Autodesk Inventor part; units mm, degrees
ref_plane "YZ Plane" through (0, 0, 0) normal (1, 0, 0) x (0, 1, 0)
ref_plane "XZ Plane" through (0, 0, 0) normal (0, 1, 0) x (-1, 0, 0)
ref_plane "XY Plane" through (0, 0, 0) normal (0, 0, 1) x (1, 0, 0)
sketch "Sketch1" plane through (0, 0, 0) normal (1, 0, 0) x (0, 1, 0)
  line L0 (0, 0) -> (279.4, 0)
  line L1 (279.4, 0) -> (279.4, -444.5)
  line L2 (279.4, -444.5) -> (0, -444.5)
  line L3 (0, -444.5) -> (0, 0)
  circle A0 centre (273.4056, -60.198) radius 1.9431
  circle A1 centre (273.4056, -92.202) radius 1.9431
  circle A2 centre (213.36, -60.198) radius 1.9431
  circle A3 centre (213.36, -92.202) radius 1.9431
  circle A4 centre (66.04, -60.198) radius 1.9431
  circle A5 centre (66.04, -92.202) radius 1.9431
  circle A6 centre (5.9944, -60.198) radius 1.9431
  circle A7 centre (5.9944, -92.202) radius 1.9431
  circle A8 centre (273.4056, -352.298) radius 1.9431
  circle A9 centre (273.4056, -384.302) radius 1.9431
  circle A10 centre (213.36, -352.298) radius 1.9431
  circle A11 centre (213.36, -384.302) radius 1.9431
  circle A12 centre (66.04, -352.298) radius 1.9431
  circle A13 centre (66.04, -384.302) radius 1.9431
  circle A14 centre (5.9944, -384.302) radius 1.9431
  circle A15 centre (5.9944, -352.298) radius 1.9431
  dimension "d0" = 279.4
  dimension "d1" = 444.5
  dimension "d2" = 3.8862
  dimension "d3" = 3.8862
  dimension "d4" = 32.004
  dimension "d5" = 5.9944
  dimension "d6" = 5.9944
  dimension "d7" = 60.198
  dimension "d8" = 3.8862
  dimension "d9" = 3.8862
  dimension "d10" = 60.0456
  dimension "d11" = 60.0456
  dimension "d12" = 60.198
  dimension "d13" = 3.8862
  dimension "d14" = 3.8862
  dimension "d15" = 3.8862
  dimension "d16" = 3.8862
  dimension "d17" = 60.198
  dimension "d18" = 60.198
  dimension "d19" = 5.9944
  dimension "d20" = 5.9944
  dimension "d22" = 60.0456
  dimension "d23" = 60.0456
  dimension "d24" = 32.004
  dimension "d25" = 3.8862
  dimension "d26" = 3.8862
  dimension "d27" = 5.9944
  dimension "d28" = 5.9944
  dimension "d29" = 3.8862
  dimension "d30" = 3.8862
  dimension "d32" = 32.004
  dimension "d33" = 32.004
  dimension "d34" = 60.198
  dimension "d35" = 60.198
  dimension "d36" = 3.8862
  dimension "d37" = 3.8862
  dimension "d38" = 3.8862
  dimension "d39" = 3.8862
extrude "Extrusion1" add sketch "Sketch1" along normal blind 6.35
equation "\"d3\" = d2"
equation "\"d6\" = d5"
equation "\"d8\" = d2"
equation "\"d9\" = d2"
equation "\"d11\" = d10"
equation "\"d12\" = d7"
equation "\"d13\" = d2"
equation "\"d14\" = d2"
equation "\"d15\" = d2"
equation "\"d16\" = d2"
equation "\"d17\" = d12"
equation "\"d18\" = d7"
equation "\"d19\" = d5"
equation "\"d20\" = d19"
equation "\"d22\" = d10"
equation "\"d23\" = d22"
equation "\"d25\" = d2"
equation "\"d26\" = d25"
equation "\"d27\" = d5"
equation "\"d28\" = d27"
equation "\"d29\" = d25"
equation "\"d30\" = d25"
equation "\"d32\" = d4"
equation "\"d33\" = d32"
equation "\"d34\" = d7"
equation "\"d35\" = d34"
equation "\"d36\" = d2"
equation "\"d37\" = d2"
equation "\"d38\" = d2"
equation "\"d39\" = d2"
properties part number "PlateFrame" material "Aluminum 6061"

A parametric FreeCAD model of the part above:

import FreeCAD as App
import Part
import Sketcher
from FreeCAD import Vector
Q = App.Units.Quantity


def add_polygon(sketch, points):
    """Adds a closed chain of lines whose ends are joined by coincident constraints."""
    first, n = sketch.GeometryCount, len(points)
    for a, b in zip(points, points[1:] + points[:1]):
        sketch.addGeometry(Part.LineSegment(App.Vector(*a, 0), App.Vector(*b, 0)), False)
    for i in range(n):
        sketch.addConstraint(Sketcher.Constraint("Coincident", first + i, 2, first + (i + 1) % n, 1))

doc = App.newDocument("Part")
body = doc.addObject("PartDesign::Body", "Body")

# Sketch on YZ plane
sketch1 = body.newObject("Sketcher::SketchObject", "Sketch")
sketch1.AttachmentSupport = (doc.getObject("YZ_Plane"), [""])
sketch1.MapMode = "FlatFace"
add_polygon(sketch1, [(279.4, 0), (0, 0), (0, -444.5), (279.4, -444.5)])  # lines 0-3
sketch1.addGeometry(Part.Circle(Vector(6, -384.3, 0), Vector(0, 0, 1), 1.9), False)  # 4
sketch1.addGeometry(Part.Circle(Vector(6, -352.3, 0), Vector(0, 0, 1), 1.9), False)  # 5
sketch1.addGeometry(Part.Circle(Vector(66, -384.3, 0), Vector(0, 0, 1), 1.9), False)  # 6
sketch1.addGeometry(Part.Circle(Vector(66, -352.3, 0), Vector(0, 0, 1), 1.9), False)  # 7
sketch1.addGeometry(Part.Circle(Vector(213.4, -384.3, 0), Vector(0, 0, 1), 1.9), False)  # 8
sketch1.addGeometry(Part.Circle(Vector(213.4, -352.3, 0), Vector(0, 0, 1), 1.9), False)  # 9
sketch1.addGeometry(Part.Circle(Vector(273.4, -384.3, 0), Vector(0, 0, 1), 1.9), False)  # 10
sketch1.addGeometry(Part.Circle(Vector(273.4, -352.3, 0), Vector(0, 0, 1), 1.9), False)  # 11
sketch1.addGeometry(Part.Circle(Vector(6, -92.2, 0), Vector(0, 0, 1), 1.9), False)  # 12
sketch1.addGeometry(Part.Circle(Vector(6, -60.2, 0), Vector(0, 0, 1), 1.9), False)  # 13
sketch1.addGeometry(Part.Circle(Vector(66, -92.2, 0), Vector(0, 0, 1), 1.9), False)  # 14
sketch1.addGeometry(Part.Circle(Vector(66, -60.2, 0), Vector(0, 0, 1), 1.9), False)  # 15
sketch1.addGeometry(Part.Circle(Vector(213.4, -92.2, 0), Vector(0, 0, 1), 1.9), False)  # 16
sketch1.addGeometry(Part.Circle(Vector(213.4, -60.2, 0), Vector(0, 0, 1), 1.9), False)  # 17
sketch1.addGeometry(Part.Circle(Vector(273.4, -92.2, 0), Vector(0, 0, 1), 1.9), False)  # 18
sketch1.addGeometry(Part.Circle(Vector(273.4, -60.2, 0), Vector(0, 0, 1), 1.9), False)  # 19
sketch1.addConstraint(Sketcher.Constraint("Horizontal", 0))
sketch1.addConstraint(Sketcher.Constraint("Vertical", 1))
sketch1.addConstraint(Sketcher.Constraint("Horizontal", 2))
sketch1.addConstraint(Sketcher.Constraint("Vertical", 3))
sketch1.addConstraint(Sketcher.Constraint("Coincident", 0, 2, -1, 1))
sketch1.addConstraint(Sketcher.Constraint("Equal", 4, 5))
sketch1.addConstraint(Sketcher.Constraint("Equal", 5, 6))
sketch1.addConstraint(Sketcher.Constraint("Equal", 6, 7))
sketch1.addConstraint(Sketcher.Constraint("Equal", 7, 8))
sketch1.addConstraint(Sketcher.Constraint("Equal", 8, 9))
sketch1.addConstraint(Sketcher.Constraint("Equal", 9, 10))
sketch1.addConstraint(Sketcher.Constraint("Equal", 10, 11))
sketch1.addConstraint(Sketcher.Constraint("Equal", 11, 12))
sketch1.addConstraint(Sketcher.Constraint("Equal", 12, 13))
sketch1.addConstraint(Sketcher.Constraint("Equal", 13, 14))
sketch1.addConstraint(Sketcher.Constraint("Equal", 14, 15))
sketch1.addConstraint(Sketcher.Constraint("Equal", 15, 16))
sketch1.addConstraint(Sketcher.Constraint("Equal", 16, 17))
sketch1.addConstraint(Sketcher.Constraint("Equal", 17, 18))
sketch1.addConstraint(Sketcher.Constraint("Equal", 18, 19))
sketch1.addConstraint(Sketcher.Constraint("Horizontal", 4, 3, 6, 3))
sketch1.addConstraint(Sketcher.Constraint("Horizontal", 5, 3, 7, 3))
sketch1.addConstraint(Sketcher.Constraint("Horizontal", 6, 3, 8, 3))
sketch1.addConstraint(Sketcher.Constraint("Horizontal", 7, 3, 9, 3))
sketch1.addConstraint(Sketcher.Constraint("Horizontal", 8, 3, 10, 3))
sketch1.addConstraint(Sketcher.Constraint("Horizontal", 9, 3, 11, 3))
sketch1.addConstraint(Sketcher.Constraint("Horizontal", 12, 3, 14, 3))
sketch1.addConstraint(Sketcher.Constraint("Horizontal", 13, 3, 15, 3))
sketch1.addConstraint(Sketcher.Constraint("Horizontal", 14, 3, 16, 3))
sketch1.addConstraint(Sketcher.Constraint("Horizontal", 15, 3, 17, 3))
sketch1.addConstraint(Sketcher.Constraint("Horizontal", 16, 3, 18, 3))
sketch1.addConstraint(Sketcher.Constraint("Horizontal", 17, 3, 19, 3))
sketch1.addConstraint(Sketcher.Constraint("Vertical", 4, 3, 5, 3))
sketch1.addConstraint(Sketcher.Constraint("Vertical", 6, 3, 7, 3))
sketch1.addConstraint(Sketcher.Constraint("Vertical", 8, 3, 9, 3))
sketch1.addConstraint(Sketcher.Constraint("Vertical", 10, 3, 11, 3))
sketch1.addConstraint(Sketcher.Constraint("Vertical", 5, 3, 12, 3))
sketch1.addConstraint(Sketcher.Constraint("Vertical", 12, 3, 13, 3))
sketch1.addConstraint(Sketcher.Constraint("Vertical", 7, 3, 14, 3))
sketch1.addConstraint(Sketcher.Constraint("Vertical", 14, 3, 15, 3))
sketch1.addConstraint(Sketcher.Constraint("Vertical", 9, 3, 16, 3))
sketch1.addConstraint(Sketcher.Constraint("Vertical", 16, 3, 17, 3))
sketch1.addConstraint(Sketcher.Constraint("Vertical", 11, 3, 18, 3))
sketch1.addConstraint(Sketcher.Constraint("Vertical", 18, 3, 19, 3))
sketch1.addConstraint(Sketcher.Constraint("DistanceX", 0, 2, 0, 1, Q("11 in")))
sketch1.addConstraint(Sketcher.Constraint("Diameter", 4, Q("0.153 in")))
sketch1.addConstraint(Sketcher.Constraint("DistanceY", 1, 2, 1, 1, Q("17.5 in")))
sketch1.addConstraint(Sketcher.Constraint("DistanceY", 13, 3, -1, 1, Q("2.37 in")))
sketch1.addConstraint(Sketcher.Constraint("DistanceY", 4, 3, 5, 3, Q("1.26 in")))
sketch1.addConstraint(Sketcher.Constraint("DistanceY", 12, 3, 13, 3, Q("1.26 in")))
sketch1.addConstraint(Sketcher.Constraint("DistanceY", 1, 2, 4, 3, Q("2.37 in")))
sketch1.addConstraint(Sketcher.Constraint("DistanceX", -1, 1, 4, 3, Q("0.236 in")))
sketch1.addConstraint(Sketcher.Constraint("DistanceX", 4, 3, 6, 3, Q("2.364 in")))
sketch1.addConstraint(Sketcher.Constraint("DistanceX", 8, 3, 10, 3, Q("2.364 in")))
sketch1.addConstraint(Sketcher.Constraint("DistanceX", 10, 3, 2, 2, Q("0.236 in")))
pad1 = body.newObject("PartDesign::Pad", "Pad")
pad1.Profile = sketch1
pad1.Length = Q("0.25 in")

doc.recompute()
